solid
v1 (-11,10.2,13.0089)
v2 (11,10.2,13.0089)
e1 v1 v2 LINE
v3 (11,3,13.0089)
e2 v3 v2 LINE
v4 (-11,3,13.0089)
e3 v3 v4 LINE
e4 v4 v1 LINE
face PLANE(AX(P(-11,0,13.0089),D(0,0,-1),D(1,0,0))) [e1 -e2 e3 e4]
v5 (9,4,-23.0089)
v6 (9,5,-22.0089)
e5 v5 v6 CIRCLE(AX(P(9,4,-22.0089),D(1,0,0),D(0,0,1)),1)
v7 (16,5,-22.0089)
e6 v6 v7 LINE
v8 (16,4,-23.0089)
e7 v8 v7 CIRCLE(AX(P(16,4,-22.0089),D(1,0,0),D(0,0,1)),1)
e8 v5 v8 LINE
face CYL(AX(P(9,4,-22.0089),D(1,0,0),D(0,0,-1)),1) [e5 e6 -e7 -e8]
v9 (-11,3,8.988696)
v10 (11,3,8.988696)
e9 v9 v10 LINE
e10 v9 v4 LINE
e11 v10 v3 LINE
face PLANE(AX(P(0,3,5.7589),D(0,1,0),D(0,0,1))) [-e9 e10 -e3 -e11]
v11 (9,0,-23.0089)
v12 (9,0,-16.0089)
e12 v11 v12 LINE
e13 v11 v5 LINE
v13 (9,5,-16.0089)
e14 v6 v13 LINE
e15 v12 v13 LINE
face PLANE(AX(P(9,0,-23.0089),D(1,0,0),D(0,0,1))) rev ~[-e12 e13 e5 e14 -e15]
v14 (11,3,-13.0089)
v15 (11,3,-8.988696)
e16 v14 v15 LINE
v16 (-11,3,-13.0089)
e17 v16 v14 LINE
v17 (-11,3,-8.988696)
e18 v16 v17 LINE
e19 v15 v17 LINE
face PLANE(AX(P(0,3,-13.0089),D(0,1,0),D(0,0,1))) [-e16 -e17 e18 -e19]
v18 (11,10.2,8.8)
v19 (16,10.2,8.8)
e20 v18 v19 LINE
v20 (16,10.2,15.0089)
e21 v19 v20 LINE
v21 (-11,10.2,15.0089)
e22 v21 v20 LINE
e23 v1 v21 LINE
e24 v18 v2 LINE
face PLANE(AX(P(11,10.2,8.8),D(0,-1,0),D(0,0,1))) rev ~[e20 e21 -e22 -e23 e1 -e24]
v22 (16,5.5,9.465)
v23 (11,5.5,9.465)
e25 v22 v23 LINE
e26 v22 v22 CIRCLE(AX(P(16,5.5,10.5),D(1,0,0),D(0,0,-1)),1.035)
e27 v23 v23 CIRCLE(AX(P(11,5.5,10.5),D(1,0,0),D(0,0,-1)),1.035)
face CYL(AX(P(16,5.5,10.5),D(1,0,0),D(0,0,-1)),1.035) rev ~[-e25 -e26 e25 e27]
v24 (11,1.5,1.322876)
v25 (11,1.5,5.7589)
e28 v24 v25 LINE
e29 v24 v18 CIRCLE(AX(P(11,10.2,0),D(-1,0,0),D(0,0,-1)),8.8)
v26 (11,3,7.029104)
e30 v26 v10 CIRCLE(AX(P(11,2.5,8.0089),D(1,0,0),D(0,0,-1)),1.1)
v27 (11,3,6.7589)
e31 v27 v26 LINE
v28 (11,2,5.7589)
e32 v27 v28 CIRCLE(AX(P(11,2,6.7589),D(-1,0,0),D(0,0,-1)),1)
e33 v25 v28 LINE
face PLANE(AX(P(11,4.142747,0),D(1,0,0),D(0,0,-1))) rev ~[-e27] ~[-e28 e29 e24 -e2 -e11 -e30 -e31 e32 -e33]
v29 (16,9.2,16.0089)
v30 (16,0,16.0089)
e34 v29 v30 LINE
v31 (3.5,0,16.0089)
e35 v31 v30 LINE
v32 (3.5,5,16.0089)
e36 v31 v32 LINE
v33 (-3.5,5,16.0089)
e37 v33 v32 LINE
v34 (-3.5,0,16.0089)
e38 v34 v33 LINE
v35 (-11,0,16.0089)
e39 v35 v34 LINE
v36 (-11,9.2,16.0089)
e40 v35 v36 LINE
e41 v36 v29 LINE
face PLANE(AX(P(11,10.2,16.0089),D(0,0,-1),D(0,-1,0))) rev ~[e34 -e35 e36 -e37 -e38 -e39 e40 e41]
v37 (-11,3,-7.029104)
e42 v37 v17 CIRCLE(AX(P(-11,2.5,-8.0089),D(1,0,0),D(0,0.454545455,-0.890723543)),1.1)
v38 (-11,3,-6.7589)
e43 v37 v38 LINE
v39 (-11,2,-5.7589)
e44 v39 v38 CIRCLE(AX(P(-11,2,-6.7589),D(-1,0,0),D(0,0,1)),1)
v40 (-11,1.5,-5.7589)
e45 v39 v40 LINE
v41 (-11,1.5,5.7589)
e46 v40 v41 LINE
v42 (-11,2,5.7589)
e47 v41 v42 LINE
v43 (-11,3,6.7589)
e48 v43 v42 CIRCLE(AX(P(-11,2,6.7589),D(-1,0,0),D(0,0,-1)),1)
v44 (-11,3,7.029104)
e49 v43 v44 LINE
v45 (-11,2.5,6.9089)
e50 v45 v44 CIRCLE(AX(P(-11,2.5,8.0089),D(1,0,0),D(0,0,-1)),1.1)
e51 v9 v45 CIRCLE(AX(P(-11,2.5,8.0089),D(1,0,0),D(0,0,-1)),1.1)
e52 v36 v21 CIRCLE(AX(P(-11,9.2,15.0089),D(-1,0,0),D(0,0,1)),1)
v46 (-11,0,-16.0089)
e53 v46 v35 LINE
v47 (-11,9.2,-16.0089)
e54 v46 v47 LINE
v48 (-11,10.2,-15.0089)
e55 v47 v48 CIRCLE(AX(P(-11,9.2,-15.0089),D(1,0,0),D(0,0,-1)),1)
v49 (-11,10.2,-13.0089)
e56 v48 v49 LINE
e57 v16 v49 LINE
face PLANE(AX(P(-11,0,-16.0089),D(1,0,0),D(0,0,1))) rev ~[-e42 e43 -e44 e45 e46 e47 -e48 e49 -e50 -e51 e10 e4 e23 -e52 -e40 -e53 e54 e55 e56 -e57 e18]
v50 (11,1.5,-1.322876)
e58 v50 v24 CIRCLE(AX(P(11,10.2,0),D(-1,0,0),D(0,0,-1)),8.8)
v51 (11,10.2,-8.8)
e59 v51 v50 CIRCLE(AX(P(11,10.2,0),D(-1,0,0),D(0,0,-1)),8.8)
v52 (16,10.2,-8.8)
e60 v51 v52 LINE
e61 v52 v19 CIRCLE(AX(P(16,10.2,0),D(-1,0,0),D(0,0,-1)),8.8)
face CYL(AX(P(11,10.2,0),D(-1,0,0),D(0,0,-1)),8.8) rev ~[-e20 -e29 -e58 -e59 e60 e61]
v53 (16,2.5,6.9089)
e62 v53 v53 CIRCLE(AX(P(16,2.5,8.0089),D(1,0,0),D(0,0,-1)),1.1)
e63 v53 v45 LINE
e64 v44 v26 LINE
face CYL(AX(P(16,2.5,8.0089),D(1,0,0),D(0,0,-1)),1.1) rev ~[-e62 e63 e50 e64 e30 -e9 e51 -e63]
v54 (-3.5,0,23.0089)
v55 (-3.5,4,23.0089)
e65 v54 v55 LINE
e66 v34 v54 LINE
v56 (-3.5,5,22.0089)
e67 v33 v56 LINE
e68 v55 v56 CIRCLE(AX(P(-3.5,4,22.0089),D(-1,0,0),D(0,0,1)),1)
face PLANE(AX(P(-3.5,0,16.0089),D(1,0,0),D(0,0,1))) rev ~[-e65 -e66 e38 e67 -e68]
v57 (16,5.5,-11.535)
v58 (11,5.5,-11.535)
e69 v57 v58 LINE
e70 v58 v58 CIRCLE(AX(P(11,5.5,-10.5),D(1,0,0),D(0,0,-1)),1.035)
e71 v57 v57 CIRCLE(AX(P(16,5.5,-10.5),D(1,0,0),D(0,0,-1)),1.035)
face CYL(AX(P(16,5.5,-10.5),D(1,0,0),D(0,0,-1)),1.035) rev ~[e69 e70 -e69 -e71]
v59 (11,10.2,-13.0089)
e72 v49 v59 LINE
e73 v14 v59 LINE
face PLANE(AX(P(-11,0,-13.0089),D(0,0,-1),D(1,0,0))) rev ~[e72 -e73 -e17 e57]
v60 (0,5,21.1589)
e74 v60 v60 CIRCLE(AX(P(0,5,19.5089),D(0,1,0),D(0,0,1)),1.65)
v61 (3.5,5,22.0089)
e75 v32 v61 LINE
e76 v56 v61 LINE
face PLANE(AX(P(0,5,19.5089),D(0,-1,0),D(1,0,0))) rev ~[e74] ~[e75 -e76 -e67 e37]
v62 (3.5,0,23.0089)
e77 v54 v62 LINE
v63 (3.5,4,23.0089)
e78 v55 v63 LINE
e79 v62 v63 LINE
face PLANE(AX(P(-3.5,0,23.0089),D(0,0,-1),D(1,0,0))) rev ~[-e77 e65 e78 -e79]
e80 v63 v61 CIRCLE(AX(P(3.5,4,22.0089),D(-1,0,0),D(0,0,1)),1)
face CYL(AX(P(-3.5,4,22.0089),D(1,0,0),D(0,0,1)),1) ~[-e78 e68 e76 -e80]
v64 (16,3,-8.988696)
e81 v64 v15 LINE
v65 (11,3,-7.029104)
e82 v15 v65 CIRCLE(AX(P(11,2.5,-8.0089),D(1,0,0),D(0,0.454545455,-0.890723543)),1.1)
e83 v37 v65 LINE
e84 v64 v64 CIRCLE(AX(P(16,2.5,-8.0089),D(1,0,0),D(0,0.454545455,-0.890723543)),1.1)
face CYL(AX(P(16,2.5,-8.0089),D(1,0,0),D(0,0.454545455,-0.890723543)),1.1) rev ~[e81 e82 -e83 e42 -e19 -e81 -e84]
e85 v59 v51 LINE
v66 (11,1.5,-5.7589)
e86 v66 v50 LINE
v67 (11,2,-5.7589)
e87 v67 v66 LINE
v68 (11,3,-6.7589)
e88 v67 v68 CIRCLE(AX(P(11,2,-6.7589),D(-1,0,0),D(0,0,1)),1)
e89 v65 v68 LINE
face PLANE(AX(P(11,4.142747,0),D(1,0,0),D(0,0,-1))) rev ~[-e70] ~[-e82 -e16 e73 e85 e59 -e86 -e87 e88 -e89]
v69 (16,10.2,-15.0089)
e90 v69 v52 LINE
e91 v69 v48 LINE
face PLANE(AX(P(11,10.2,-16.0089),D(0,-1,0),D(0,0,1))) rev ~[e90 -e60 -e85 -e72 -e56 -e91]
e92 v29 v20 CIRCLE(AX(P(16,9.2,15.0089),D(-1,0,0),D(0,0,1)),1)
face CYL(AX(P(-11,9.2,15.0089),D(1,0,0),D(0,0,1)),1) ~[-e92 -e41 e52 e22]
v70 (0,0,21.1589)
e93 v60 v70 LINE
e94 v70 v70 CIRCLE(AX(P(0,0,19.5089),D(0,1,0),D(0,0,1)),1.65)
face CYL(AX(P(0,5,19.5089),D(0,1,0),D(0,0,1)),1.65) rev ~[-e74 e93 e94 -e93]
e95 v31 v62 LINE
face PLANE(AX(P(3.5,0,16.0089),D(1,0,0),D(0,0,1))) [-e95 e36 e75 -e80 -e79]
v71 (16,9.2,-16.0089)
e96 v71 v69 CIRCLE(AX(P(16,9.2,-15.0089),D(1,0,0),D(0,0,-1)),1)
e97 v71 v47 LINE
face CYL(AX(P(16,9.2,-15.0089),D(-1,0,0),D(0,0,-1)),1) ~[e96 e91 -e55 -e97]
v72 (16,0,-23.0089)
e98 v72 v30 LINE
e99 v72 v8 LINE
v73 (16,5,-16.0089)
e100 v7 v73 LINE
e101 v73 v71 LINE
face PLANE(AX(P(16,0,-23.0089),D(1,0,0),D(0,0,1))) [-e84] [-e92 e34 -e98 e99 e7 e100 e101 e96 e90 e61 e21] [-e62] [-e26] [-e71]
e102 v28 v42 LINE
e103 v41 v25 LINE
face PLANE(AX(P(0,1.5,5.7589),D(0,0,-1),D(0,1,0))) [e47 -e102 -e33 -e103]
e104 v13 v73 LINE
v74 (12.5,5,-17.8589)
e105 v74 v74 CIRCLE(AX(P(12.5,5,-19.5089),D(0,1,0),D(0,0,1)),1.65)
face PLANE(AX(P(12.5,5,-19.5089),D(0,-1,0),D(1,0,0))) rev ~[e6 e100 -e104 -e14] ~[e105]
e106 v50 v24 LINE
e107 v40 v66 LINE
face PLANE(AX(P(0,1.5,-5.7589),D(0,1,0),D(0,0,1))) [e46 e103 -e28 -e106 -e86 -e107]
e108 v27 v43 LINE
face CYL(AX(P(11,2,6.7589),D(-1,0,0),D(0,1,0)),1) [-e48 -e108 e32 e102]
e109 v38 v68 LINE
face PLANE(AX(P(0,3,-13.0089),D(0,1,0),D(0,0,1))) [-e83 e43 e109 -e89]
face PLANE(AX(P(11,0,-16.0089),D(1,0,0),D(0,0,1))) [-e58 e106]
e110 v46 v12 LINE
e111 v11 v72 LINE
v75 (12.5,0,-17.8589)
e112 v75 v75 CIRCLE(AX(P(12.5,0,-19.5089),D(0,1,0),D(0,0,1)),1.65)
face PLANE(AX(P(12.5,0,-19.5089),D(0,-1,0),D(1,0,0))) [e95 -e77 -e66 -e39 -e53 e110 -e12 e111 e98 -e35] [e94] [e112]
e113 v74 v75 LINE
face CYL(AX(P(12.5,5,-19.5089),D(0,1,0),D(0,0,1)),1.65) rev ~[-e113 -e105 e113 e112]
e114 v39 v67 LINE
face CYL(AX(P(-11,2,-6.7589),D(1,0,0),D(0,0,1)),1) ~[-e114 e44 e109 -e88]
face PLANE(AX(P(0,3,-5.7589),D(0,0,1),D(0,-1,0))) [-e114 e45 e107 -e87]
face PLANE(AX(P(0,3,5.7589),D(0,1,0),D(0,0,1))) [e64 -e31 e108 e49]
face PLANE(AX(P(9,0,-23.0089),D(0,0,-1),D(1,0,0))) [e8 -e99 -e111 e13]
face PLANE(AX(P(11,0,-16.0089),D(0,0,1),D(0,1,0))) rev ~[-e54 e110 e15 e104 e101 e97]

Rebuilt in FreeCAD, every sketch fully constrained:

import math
import FreeCAD as App
import Part
import Sketcher
Q = App.Units.Quantity


def edges_at(feature, points):
    """Names of the edges that pass closest to the given points."""
    edges = feature.Shape.Edges
    near = lambda p: min(range(len(edges)), key=lambda i: edges[i].distToShape(Part.Vertex(*p))[0])
    return sorted({f"Edge{near(p) + 1}" for p in points})


def add_polygon(sketch, points):
    """Adds a closed chain of lines whose ends are joined by coincident constraints."""
    first, n = sketch.GeometryCount, len(points)
    for a, b in zip(points, points[1:] + points[:1]):
        sketch.addGeometry(Part.LineSegment(App.Vector(*a, 0), App.Vector(*b, 0)), False)
    for i in range(n):
        sketch.addConstraint(Sketcher.Constraint("Coincident", first + i, 2, first + (i + 1) % n, 1))

doc = App.newDocument("Part")
body = doc.addObject("PartDesign::Body", "Body")

# Sketch on YZ plane
sketch1 = body.newObject("Sketcher::SketchObject", "Sketch")
sketch1.AttachmentSupport = (doc.getObject("YZ_Plane"), [""])
sketch1.MapMode = "FlatFace"
add_polygon(sketch1, [(0, 13.0089), (0, -13.0089), (3, -13.0089), (3, -5.7589), (1.5, -5.7589), (1.5, 5.7589), (3, 5.7589), (3, 13.0089)])  # lines 0-7
sketch1.addConstraint(Sketcher.Constraint("Vertical", 0))
sketch1.addConstraint(Sketcher.Constraint("Horizontal", 1))
sketch1.addConstraint(Sketcher.Constraint("Vertical", 2))
sketch1.addConstraint(Sketcher.Constraint("Horizontal", 3))
sketch1.addConstraint(Sketcher.Constraint("Vertical", 4))
sketch1.addConstraint(Sketcher.Constraint("Horizontal", 5))
sketch1.addConstraint(Sketcher.Constraint("Vertical", 6))
sketch1.addConstraint(Sketcher.Constraint("Horizontal", 7))
sketch1.addConstraint(Sketcher.Constraint("Symmetric", 0, 2, 7, 2, -1, 1))
sketch1.addConstraint(Sketcher.Constraint("Symmetric", 2, 2, 5, 2, -1))
sketch1.addConstraint(Sketcher.Constraint("DistanceX", 1, 1, 1, 2, Q("3 mm")))
sketch1.addConstraint(Sketcher.Constraint("DistanceX", 3, 2, 3, 1, Q("1.5 mm")))
sketch1.addConstraint(Sketcher.Constraint("DistanceY", 2, 1, 2, 2, Q("7.25 mm")))
sketch1.addConstraint(Sketcher.Constraint("DistanceY", 0, 2, 0, 1, Q("26.0178 mm")))
pad1 = body.newObject("PartDesign::Pad", "Pad")
pad1.Profile = sketch1
pad1.Length = 22
pad1.Midplane = True

# Sketch on XZ plane
sketch2 = body.newObject("Sketcher::SketchObject", "Sketch001")
sketch2.AttachmentSupport = (doc.getObject("XZ_Plane"), [""])
sketch2.MapMode = "FlatFace"
add_polygon(sketch2, [(-11, -13.0089), (-11, -16.0089), (11, -16.0089), (11, -13.0089)])  # lines 0-3
add_polygon(sketch2, [(-11, 16.0089), (-11, 13.0089), (11, 13.0089), (11, 16.0089)])  # lines 4-7
sketch2.addConstraint(Sketcher.Constraint("Vertical", 0))
sketch2.addConstraint(Sketcher.Constraint("Horizontal", 1))
sketch2.addConstraint(Sketcher.Constraint("Vertical", 2))
sketch2.addConstraint(Sketcher.Constraint("Horizontal", 3))
sketch2.addConstraint(Sketcher.Constraint("Vertical", 4))
sketch2.addConstraint(Sketcher.Constraint("Horizontal", 5))
sketch2.addConstraint(Sketcher.Constraint("Vertical", 6))
sketch2.addConstraint(Sketcher.Constraint("Horizontal", 7))
sketch2.addConstraint(Sketcher.Constraint("Symmetric", 2, 2, 4, 2, -1, 1))
sketch2.addConstraint(Sketcher.Constraint("Symmetric", 0, 2, 6, 2, -1, 1))
sketch2.addConstraint(Sketcher.Constraint("Vertical", 3, 2, 4, 2))
sketch2.addConstraint(Sketcher.Constraint("DistanceX", 1, 1, 1, 2, Q("22 mm")))
sketch2.addConstraint(Sketcher.Constraint("DistanceY", 0, 2, 0, 1, Q("3 mm")))
sketch2.addConstraint(Sketcher.Constraint("DistanceY", 0, 2, -1, 1, Q("16.0089 mm")))
pad2 = body.newObject("PartDesign::Pad", "Pad001")
pad2.Profile = sketch2
pad2.Length = 10.2
pad2.Reversed = True

# Sketch on YZ plane
sketch3 = body.newObject("Sketcher::SketchObject", "Sketch002")
sketch3.AttachmentSupport = (doc.getObject("YZ_Plane"), [""])
sketch3.MapMode = "FlatFace"
sketch3.AttachmentOffset = App.Placement(App.Vector(0, 0, 11), App.Rotation())
sketch3.addGeometry(Part.LineSegment(App.Vector(10.2, 8.8, 0), App.Vector(10.2, 16.0089, 0)), False)
sketch3.addGeometry(Part.LineSegment(App.Vector(10.2, 16.0089, 0), App.Vector(0, 16.0089, 0)), False)
sketch3.addGeometry(Part.LineSegment(App.Vector(0, 16.0089, 0), App.Vector(0, -16.0089, 0)), False)
sketch3.addGeometry(Part.LineSegment(App.Vector(0, -16.0089, 0), App.Vector(10.2, -16.0089, 0)), False)
sketch3.addGeometry(Part.LineSegment(App.Vector(10.2, -16.0089, 0), App.Vector(10.2, -8.8, 0)), False)
sketch3.addGeometry(Part.ArcOfCircle(Part.Circle(App.Vector(10.2, 0, 0), App.Vector(0, 0, 1), 8.8), math.radians(90), math.radians(270)), False)
sketch3.addConstraint(Sketcher.Constraint("Coincident", 0, 2, 1, 1))
sketch3.addConstraint(Sketcher.Constraint("Coincident", 1, 2, 2, 1))
sketch3.addConstraint(Sketcher.Constraint("Coincident", 2, 2, 3, 1))
sketch3.addConstraint(Sketcher.Constraint("Coincident", 3, 2, 4, 1))
sketch3.addConstraint(Sketcher.Constraint("Coincident", 4, 2, 5, 2))
sketch3.addConstraint(Sketcher.Constraint("Coincident", 5, 1, 0, 1))
sketch3.addConstraint(Sketcher.Constraint("Vertical", 0))
sketch3.addConstraint(Sketcher.Constraint("Horizontal", 1))
sketch3.addConstraint(Sketcher.Constraint("Vertical", 2))
sketch3.addConstraint(Sketcher.Constraint("Horizontal", 3))
sketch3.addConstraint(Sketcher.Constraint("Vertical", 4))
sketch3.addConstraint(Sketcher.Constraint("Symmetric", 1, 2, 2, 2, -1, 1))
sketch3.addConstraint(Sketcher.Constraint("Symmetric", 4, 2, 5, 1, -1))
sketch3.addConstraint(Sketcher.Constraint("Vertical", 5, 3, 0, 2))
sketch3.addConstraint(Sketcher.Constraint("Radius", 5, Q("8.8 mm")))
sketch3.addConstraint(Sketcher.Constraint("DistanceX", 1, 2, 1, 1, Q("10.2 mm")))
sketch3.addConstraint(Sketcher.Constraint("DistanceY", 0, 1, 0, 2, Q("7.2089 mm")))
pad3 = body.newObject("PartDesign::Pad", "Pad002")
pad3.Profile = sketch3
pad3.Length = 5

# Sketch on YZ plane
sketch4 = body.newObject("Sketcher::SketchObject", "Sketch003")
sketch4.AttachmentSupport = (doc.getObject("YZ_Plane"), [""])
sketch4.MapMode = "FlatFace"
sketch4.AttachmentOffset = App.Placement(App.Vector(0, 0, 16), App.Rotation())
sketch4.addGeometry(Part.Circle(App.Vector(5.5, 10.5, 0), App.Vector(0, 0, 1), 1.035), False)
sketch4.addGeometry(Part.Circle(App.Vector(5.5, -10.5, 0), App.Vector(0, 0, 1), 1.035), False)
sketch4.addGeometry(Part.Circle(App.Vector(2.5, 8.0089, 0), App.Vector(0, 0, 1), 1.1), False)
sketch4.addGeometry(Part.Circle(App.Vector(2.5, -8.0089, 0), App.Vector(0, 0, 1), 1.1), False)
sketch4.addConstraint(Sketcher.Constraint("Equal", 0, 1))
sketch4.addConstraint(Sketcher.Constraint("Equal", 2, 3))
sketch4.addConstraint(Sketcher.Constraint("Symmetric", 0, 3, 1, 3, -1))
sketch4.addConstraint(Sketcher.Constraint("Symmetric", 2, 3, 3, 3, -1))
sketch4.addConstraint(Sketcher.Constraint("Diameter", 2, Q("2.2 mm")))
sketch4.addConstraint(Sketcher.Constraint("Diameter", 0, Q("2.07 mm")))
sketch4.addConstraint(Sketcher.Constraint("DistanceY", 1, 3, 0, 3, Q("21 mm")))
sketch4.addConstraint(Sketcher.Constraint("DistanceX", 2, 3, 0, 3, Q("3 mm")))
sketch4.addConstraint(Sketcher.Constraint("DistanceX", -1, 1, 0, 3, Q("5.5 mm")))
sketch4.addConstraint(Sketcher.Constraint("DistanceY", -1, 1, 2, 3, Q("8.0089 mm")))
pocket1 = body.newObject("PartDesign::Pocket", "Pocket")
pocket1.Profile = sketch4
pocket1.Type = "ThroughAll"

# Sketch on XZ plane
sketch5 = body.newObject("Sketcher::SketchObject", "Sketch004")
sketch5.AttachmentSupport = (doc.getObject("XZ_Plane"), [""])
sketch5.MapMode = "FlatFace"
add_polygon(sketch5, [(-3.5, 23.0089), (-3.5, 16.0089), (3.5, 16.0089), (3.5, 23.0089)])  # lines 0-3
add_polygon(sketch5, [(9, -16.0089), (9, -23.0089), (16, -23.0089), (16, -16.0089)])  # lines 4-7
sketch5.addConstraint(Sketcher.Constraint("Vertical", 0))
sketch5.addConstraint(Sketcher.Constraint("Horizontal", 1))
sketch5.addConstraint(Sketcher.Constraint("Vertical", 2))
sketch5.addConstraint(Sketcher.Constraint("Horizontal", 3))
sketch5.addConstraint(Sketcher.Constraint("Vertical", 4))
sketch5.addConstraint(Sketcher.Constraint("Horizontal", 5))
sketch5.addConstraint(Sketcher.Constraint("Vertical", 6))
sketch5.addConstraint(Sketcher.Constraint("Horizontal", 7))
sketch5.addConstraint(Sketcher.Constraint("Equal", 3, 5))
sketch5.addConstraint(Sketcher.Constraint("Equal", 7, 0))
sketch5.addConstraint(Sketcher.Constraint("Equal", 2, 4))
sketch5.addConstraint(Sketcher.Constraint("DistanceX", 1, 1, 1, 2, Q("7 mm")))
sketch5.addConstraint(Sketcher.Constraint("DistanceX", -1, 1, 4, 2, Q("9 mm")))
sketch5.addConstraint(Sketcher.Constraint("DistanceX", 0, 2, -1, 1, Q("3.5 mm")))
sketch5.addConstraint(Sketcher.Constraint("DistanceY", -1, 1, 0, 2, Q("16.0089 mm")))
sketch5.addConstraint(Sketcher.Constraint("DistanceY", 4, 2, -1, 1, Q("23.0089 mm")))
pad4 = body.newObject("PartDesign::Pad", "Pad003")
pad4.Profile = sketch5
pad4.Length = 5
pad4.Reversed = True

# Sketch on XZ plane
sketch6 = body.newObject("Sketcher::SketchObject", "Sketch005")
sketch6.AttachmentSupport = (doc.getObject("XZ_Plane"), [""])
sketch6.MapMode = "FlatFace"
sketch6.AttachmentOffset = App.Placement(App.Vector(0, 0, -5), App.Rotation())
sketch6.addGeometry(Part.Circle(App.Vector(0, 19.5089, 0), App.Vector(0, 0, 1), 1.65), False)
sketch6.addGeometry(Part.Circle(App.Vector(12.5, -19.5089, 0), App.Vector(0, 0, 1), 1.65), False)
sketch6.addConstraint(Sketcher.Constraint("Equal", 0, 1))
sketch6.addConstraint(Sketcher.Constraint("PointOnObject", 0, 3, -2))
sketch6.addConstraint(Sketcher.Constraint("Diameter", 0, Q("3.3 mm")))
sketch6.addConstraint(Sketcher.Constraint("DistanceX", -1, 1, 1, 3, Q("12.5 mm")))
sketch6.addConstraint(Sketcher.Constraint("DistanceY", -1, 1, 0, 3, Q("19.5089 mm")))
sketch6.addConstraint(Sketcher.Constraint("DistanceY", 1, 3, -1, 1, Q("19.5089 mm")))
pocket2 = body.newObject("PartDesign::Pocket", "Pocket001")
pocket2.Profile = sketch6
pocket2.Type = "ThroughAll"
pocket2.Reversed = True
doc.recompute()

fillet = body.newObject("PartDesign::Fillet", "Fillet")
fillet.Base = (pocket2, edges_at(pocket2, [
    (0, 5, 23.009),
    (12.5, 5, -23.009),
    (0, 3, 5.759),
    (0, 3, -5.759),
    (2.5, 10.2, -16.009),
    (2.5, 10.2, 16.009),
]))
fillet.Radius = 1

doc.recompute()
